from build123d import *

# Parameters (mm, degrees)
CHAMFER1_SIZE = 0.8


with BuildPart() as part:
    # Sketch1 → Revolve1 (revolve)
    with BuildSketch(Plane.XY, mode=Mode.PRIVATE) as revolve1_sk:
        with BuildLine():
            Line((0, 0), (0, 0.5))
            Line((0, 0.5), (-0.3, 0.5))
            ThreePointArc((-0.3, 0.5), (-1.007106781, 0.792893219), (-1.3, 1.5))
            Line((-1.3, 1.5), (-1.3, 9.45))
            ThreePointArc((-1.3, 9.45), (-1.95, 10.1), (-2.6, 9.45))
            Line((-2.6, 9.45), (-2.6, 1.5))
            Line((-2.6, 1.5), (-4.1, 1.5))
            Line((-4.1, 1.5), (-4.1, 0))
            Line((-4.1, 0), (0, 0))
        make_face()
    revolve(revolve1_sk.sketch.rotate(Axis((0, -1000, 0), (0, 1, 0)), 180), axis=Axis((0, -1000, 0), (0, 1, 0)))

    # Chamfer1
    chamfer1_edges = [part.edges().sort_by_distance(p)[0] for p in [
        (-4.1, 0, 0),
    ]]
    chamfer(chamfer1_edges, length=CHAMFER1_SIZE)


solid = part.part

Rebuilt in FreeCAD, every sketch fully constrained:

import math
import FreeCAD as App
import Part
import Sketcher

V = App.Vector
Q = App.Units.Quantity


def edges_at(feature, points):
    """Names of the edges that pass closest to the given points."""
    edges = feature.Shape.Edges
    near = lambda p: min(range(len(edges)), key=lambda i: edges[i].distToShape(Part.Vertex(*p))[0])
    return sorted({f"Edge{near(p) + 1}" for p in points})

doc = App.newDocument("Part")
body = doc.addObject("PartDesign::Body", "Body")

sketch1 = body.newObject("Sketcher::SketchObject", "Sketch")
sketch1.AttachmentSupport = (doc.getObject("XY_Plane"), [""])
sketch1.MapMode = "FlatFace"
sketch1.addGeometry([
    Part.LineSegment(V(0, 0, 0), V(0, 0.5, 0)),
    Part.LineSegment(V(0, 0.5, 0), V(-0.3, 0.5, 0)),
    Part.ArcOfCircle(Part.Circle(V(-0.3, 1.5, 0), V(0, 0, 1), 1), math.radians(-180), math.radians(-90)),
    Part.LineSegment(V(-1.3, 1.5, 0), V(-1.3, 9.45, 0)),
    Part.ArcOfCircle(Part.Circle(V(-1.95, 9.45, 0), V(0, 0, 1), 0.65), math.radians(0), math.radians(180)),
    Part.LineSegment(V(-2.6, 9.45, 0), V(-2.6, 1.5, 0)),
    Part.LineSegment(V(-2.6, 1.5, 0), V(-4.1, 1.5, 0)),
    Part.LineSegment(V(-4.1, 1.5, 0), V(-4.1, 0, 0)),
    Part.LineSegment(V(-4.1, 0, 0), V(0, 0, 0)),
], False)
sketch1.addConstraint([
    Sketcher.Constraint("Coincident", 0, 2, 1, 1),
    Sketcher.Constraint("Tangent", 1, 2, 2, 2),
    Sketcher.Constraint("Tangent", 2, 1, 3, 1),
    Sketcher.Constraint("Tangent", 3, 2, 4, 1),
    Sketcher.Constraint("Tangent", 4, 2, 5, 1),
    Sketcher.Constraint("Coincident", 5, 2, 6, 1),
    Sketcher.Constraint("Coincident", 6, 2, 7, 1),
    Sketcher.Constraint("Coincident", 7, 2, 8, 1),
    Sketcher.Constraint("Coincident", 8, 2, 0, 1),
    Sketcher.Constraint("Vertical", 0),
    Sketcher.Constraint("Horizontal", 1),
    Sketcher.Constraint("Vertical", 3),
    Sketcher.Constraint("Vertical", 5),
    Sketcher.Constraint("Horizontal", 6),
    Sketcher.Constraint("Vertical", 7),
    Sketcher.Constraint("Horizontal", 8),
    Sketcher.Constraint("Coincident", 8, 2, -1, 1),
    Sketcher.Constraint("Horizontal", 2, 1, 5, 2),
    Sketcher.Constraint("Equal", 6, 7),
    Sketcher.Constraint("Radius", 2, Q("1 mm")),
    Sketcher.Constraint("Radius", 4, Q("0.65 mm")),
    Sketcher.Constraint("DistanceX", 1, 2, 1, 1, Q("0.3 mm")),
    Sketcher.Constraint("DistanceX", 6, 2, 6, 1, Q("1.5 mm")),
    Sketcher.Constraint("DistanceY", 3, 1, 3, 2, Q("7.95 mm")),
])
revolution = body.newObject("PartDesign::Revolution", "Revolution")
revolution.Profile = sketch1
revolution.ReferenceAxis = (sketch1, ["V_Axis"])
revolution.Angle = 360
doc.recompute()

chamfer = body.newObject("PartDesign::Chamfer", "Chamfer")
chamfer.Base = (revolution, edges_at(revolution, [(-4.1, 0, 0)]))
chamfer.Size = 0.8

doc.recompute()
